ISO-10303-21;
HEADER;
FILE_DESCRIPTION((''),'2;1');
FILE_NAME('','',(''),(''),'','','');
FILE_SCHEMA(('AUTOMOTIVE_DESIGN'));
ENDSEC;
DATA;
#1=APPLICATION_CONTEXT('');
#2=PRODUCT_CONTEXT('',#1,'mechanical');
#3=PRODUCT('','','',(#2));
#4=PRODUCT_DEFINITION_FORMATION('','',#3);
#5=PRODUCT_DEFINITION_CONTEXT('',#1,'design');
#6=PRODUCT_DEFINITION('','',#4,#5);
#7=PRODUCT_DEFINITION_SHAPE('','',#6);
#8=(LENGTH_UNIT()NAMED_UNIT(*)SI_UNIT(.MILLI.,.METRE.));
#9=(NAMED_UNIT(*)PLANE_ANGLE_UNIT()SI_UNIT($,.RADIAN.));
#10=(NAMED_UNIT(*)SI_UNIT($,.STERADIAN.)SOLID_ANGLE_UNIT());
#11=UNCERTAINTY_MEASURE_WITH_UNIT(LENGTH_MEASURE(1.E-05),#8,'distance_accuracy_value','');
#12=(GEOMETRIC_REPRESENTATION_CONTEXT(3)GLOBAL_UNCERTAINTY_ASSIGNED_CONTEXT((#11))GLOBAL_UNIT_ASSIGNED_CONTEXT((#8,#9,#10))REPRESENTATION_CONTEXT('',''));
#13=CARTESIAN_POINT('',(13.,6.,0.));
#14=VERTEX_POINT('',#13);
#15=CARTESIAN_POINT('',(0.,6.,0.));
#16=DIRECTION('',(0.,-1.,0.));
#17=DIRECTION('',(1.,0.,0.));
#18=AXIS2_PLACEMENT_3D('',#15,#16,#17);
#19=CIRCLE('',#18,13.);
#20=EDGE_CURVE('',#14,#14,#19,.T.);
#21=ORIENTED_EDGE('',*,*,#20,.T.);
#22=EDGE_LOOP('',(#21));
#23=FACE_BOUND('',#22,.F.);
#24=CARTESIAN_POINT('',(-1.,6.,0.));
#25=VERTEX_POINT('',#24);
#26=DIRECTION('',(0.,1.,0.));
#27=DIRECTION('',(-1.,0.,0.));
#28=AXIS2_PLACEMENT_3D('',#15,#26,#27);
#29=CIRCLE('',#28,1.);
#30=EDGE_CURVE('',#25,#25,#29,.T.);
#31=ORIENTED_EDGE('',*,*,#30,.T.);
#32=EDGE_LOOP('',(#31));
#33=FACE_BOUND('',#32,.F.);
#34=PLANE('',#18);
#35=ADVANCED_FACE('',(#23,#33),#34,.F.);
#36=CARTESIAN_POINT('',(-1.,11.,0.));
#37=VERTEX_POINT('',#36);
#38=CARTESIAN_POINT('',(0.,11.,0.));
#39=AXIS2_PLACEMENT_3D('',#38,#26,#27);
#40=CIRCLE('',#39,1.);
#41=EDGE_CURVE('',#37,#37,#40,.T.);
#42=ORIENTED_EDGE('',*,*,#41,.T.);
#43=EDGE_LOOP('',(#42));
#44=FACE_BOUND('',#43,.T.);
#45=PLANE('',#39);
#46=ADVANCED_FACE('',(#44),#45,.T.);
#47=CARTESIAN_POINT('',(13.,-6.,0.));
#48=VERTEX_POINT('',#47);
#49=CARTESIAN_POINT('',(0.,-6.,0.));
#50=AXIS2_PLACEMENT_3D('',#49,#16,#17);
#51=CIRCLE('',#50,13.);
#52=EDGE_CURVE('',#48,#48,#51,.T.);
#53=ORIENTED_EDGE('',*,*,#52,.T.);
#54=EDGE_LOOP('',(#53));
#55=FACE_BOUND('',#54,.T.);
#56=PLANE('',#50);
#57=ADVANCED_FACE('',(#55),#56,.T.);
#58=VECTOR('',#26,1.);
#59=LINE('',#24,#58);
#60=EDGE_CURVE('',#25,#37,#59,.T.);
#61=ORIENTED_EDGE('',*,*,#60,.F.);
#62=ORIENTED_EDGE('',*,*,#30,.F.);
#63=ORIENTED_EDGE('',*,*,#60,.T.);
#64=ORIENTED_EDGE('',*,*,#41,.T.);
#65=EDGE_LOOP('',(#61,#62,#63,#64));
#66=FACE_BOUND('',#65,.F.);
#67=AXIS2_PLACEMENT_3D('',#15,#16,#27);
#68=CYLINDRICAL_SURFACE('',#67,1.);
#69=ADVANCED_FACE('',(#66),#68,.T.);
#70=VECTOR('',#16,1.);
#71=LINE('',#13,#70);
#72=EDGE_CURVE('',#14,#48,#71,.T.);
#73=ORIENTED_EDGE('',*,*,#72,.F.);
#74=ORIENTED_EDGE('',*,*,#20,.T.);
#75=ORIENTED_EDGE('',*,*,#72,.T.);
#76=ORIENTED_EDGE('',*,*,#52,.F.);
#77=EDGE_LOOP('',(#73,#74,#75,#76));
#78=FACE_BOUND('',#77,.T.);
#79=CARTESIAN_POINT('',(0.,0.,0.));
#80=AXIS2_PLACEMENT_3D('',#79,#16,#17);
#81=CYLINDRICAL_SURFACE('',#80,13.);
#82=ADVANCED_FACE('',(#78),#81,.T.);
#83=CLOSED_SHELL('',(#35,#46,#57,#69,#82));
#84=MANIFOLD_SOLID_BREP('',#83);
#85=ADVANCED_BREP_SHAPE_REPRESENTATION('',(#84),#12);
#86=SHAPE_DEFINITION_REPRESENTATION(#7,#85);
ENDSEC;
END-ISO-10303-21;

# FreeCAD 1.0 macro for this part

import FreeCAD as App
import Part
import Sketcher

V = App.Vector

doc = App.newDocument("Part")
body = doc.addObject("PartDesign::Body", "Body")

# Sketch on XZ plane
sketch1 = body.newObject("Sketcher::SketchObject", "Sketch")
sketch1.AttachmentSupport = (doc.getObject("XZ_Plane"), [""])
sketch1.MapMode = "FlatFace"
sketch1.addGeometry(Part.Circle(V(0, 0, 0), V(0, 0, 1), 13), False)
sketch1.addGeometry(Part.Circle(V(0, 0, 0), V(0, 0, 1), 12), False)
sketch1.addConstraint(Sketcher.Constraint("Coincident", 0, 3, -1, 1))
sketch1.addConstraint(Sketcher.Constraint("Coincident", 1, 3, -1, 1))
sketch1.addConstraint(Sketcher.Constraint("Diameter", 0, 26.0))
sketch1.addConstraint(Sketcher.Constraint("Diameter", 1, 23.0))
pad1 = body.newObject("PartDesign::Pad", "Pad")
pad1.Profile = sketch1
pad1.Length = 12
pad1.Midplane = True

# Sketch on XZ plane
sketch2 = body.newObject("Sketcher::SketchObject", "Sketch001")
sketch2.AttachmentSupport = (doc.getObject("XZ_Plane"), [""])
sketch2.MapMode = "FlatFace"
sketch2.addGeometry(Part.Circle(V(0, 0, 0), V(0, 0, 1), 12), False)
sketch2.addConstraint(Sketcher.Constraint("Coincident", 0, 3, -1, 1))
sketch2.addConstraint(Sketcher.Constraint("Diameter", 0, 23.0))
pad2 = body.newObject("PartDesign::Pad", "Pad001")
pad2.Profile = sketch2
pad2.Length = 12
pad2.Midplane = True

# Sketch on XZ plane
sketch3 = body.newObject("Sketcher::SketchObject", "Sketch002")
sketch3.AttachmentSupport = (doc.getObject("XZ_Plane"), [""])
sketch3.MapMode = "FlatFace"
sketch3.AttachmentOffset = App.Placement(V(0, 0, -6), App.Rotation())
sketch3.addGeometry(Part.Circle(V(0, 0, 0), V(0, 0, 1), 1), False)
sketch3.addConstraint(Sketcher.Constraint("Coincident", 0, 3, -1, 1))
sketch3.addConstraint(Sketcher.Constraint("Diameter", 0, 2.0))
pad3 = body.newObject("PartDesign::Pad", "Pad002")
pad3.Profile = sketch3
pad3.Length = 5
pad3.Reversed = True

doc.recompute()
